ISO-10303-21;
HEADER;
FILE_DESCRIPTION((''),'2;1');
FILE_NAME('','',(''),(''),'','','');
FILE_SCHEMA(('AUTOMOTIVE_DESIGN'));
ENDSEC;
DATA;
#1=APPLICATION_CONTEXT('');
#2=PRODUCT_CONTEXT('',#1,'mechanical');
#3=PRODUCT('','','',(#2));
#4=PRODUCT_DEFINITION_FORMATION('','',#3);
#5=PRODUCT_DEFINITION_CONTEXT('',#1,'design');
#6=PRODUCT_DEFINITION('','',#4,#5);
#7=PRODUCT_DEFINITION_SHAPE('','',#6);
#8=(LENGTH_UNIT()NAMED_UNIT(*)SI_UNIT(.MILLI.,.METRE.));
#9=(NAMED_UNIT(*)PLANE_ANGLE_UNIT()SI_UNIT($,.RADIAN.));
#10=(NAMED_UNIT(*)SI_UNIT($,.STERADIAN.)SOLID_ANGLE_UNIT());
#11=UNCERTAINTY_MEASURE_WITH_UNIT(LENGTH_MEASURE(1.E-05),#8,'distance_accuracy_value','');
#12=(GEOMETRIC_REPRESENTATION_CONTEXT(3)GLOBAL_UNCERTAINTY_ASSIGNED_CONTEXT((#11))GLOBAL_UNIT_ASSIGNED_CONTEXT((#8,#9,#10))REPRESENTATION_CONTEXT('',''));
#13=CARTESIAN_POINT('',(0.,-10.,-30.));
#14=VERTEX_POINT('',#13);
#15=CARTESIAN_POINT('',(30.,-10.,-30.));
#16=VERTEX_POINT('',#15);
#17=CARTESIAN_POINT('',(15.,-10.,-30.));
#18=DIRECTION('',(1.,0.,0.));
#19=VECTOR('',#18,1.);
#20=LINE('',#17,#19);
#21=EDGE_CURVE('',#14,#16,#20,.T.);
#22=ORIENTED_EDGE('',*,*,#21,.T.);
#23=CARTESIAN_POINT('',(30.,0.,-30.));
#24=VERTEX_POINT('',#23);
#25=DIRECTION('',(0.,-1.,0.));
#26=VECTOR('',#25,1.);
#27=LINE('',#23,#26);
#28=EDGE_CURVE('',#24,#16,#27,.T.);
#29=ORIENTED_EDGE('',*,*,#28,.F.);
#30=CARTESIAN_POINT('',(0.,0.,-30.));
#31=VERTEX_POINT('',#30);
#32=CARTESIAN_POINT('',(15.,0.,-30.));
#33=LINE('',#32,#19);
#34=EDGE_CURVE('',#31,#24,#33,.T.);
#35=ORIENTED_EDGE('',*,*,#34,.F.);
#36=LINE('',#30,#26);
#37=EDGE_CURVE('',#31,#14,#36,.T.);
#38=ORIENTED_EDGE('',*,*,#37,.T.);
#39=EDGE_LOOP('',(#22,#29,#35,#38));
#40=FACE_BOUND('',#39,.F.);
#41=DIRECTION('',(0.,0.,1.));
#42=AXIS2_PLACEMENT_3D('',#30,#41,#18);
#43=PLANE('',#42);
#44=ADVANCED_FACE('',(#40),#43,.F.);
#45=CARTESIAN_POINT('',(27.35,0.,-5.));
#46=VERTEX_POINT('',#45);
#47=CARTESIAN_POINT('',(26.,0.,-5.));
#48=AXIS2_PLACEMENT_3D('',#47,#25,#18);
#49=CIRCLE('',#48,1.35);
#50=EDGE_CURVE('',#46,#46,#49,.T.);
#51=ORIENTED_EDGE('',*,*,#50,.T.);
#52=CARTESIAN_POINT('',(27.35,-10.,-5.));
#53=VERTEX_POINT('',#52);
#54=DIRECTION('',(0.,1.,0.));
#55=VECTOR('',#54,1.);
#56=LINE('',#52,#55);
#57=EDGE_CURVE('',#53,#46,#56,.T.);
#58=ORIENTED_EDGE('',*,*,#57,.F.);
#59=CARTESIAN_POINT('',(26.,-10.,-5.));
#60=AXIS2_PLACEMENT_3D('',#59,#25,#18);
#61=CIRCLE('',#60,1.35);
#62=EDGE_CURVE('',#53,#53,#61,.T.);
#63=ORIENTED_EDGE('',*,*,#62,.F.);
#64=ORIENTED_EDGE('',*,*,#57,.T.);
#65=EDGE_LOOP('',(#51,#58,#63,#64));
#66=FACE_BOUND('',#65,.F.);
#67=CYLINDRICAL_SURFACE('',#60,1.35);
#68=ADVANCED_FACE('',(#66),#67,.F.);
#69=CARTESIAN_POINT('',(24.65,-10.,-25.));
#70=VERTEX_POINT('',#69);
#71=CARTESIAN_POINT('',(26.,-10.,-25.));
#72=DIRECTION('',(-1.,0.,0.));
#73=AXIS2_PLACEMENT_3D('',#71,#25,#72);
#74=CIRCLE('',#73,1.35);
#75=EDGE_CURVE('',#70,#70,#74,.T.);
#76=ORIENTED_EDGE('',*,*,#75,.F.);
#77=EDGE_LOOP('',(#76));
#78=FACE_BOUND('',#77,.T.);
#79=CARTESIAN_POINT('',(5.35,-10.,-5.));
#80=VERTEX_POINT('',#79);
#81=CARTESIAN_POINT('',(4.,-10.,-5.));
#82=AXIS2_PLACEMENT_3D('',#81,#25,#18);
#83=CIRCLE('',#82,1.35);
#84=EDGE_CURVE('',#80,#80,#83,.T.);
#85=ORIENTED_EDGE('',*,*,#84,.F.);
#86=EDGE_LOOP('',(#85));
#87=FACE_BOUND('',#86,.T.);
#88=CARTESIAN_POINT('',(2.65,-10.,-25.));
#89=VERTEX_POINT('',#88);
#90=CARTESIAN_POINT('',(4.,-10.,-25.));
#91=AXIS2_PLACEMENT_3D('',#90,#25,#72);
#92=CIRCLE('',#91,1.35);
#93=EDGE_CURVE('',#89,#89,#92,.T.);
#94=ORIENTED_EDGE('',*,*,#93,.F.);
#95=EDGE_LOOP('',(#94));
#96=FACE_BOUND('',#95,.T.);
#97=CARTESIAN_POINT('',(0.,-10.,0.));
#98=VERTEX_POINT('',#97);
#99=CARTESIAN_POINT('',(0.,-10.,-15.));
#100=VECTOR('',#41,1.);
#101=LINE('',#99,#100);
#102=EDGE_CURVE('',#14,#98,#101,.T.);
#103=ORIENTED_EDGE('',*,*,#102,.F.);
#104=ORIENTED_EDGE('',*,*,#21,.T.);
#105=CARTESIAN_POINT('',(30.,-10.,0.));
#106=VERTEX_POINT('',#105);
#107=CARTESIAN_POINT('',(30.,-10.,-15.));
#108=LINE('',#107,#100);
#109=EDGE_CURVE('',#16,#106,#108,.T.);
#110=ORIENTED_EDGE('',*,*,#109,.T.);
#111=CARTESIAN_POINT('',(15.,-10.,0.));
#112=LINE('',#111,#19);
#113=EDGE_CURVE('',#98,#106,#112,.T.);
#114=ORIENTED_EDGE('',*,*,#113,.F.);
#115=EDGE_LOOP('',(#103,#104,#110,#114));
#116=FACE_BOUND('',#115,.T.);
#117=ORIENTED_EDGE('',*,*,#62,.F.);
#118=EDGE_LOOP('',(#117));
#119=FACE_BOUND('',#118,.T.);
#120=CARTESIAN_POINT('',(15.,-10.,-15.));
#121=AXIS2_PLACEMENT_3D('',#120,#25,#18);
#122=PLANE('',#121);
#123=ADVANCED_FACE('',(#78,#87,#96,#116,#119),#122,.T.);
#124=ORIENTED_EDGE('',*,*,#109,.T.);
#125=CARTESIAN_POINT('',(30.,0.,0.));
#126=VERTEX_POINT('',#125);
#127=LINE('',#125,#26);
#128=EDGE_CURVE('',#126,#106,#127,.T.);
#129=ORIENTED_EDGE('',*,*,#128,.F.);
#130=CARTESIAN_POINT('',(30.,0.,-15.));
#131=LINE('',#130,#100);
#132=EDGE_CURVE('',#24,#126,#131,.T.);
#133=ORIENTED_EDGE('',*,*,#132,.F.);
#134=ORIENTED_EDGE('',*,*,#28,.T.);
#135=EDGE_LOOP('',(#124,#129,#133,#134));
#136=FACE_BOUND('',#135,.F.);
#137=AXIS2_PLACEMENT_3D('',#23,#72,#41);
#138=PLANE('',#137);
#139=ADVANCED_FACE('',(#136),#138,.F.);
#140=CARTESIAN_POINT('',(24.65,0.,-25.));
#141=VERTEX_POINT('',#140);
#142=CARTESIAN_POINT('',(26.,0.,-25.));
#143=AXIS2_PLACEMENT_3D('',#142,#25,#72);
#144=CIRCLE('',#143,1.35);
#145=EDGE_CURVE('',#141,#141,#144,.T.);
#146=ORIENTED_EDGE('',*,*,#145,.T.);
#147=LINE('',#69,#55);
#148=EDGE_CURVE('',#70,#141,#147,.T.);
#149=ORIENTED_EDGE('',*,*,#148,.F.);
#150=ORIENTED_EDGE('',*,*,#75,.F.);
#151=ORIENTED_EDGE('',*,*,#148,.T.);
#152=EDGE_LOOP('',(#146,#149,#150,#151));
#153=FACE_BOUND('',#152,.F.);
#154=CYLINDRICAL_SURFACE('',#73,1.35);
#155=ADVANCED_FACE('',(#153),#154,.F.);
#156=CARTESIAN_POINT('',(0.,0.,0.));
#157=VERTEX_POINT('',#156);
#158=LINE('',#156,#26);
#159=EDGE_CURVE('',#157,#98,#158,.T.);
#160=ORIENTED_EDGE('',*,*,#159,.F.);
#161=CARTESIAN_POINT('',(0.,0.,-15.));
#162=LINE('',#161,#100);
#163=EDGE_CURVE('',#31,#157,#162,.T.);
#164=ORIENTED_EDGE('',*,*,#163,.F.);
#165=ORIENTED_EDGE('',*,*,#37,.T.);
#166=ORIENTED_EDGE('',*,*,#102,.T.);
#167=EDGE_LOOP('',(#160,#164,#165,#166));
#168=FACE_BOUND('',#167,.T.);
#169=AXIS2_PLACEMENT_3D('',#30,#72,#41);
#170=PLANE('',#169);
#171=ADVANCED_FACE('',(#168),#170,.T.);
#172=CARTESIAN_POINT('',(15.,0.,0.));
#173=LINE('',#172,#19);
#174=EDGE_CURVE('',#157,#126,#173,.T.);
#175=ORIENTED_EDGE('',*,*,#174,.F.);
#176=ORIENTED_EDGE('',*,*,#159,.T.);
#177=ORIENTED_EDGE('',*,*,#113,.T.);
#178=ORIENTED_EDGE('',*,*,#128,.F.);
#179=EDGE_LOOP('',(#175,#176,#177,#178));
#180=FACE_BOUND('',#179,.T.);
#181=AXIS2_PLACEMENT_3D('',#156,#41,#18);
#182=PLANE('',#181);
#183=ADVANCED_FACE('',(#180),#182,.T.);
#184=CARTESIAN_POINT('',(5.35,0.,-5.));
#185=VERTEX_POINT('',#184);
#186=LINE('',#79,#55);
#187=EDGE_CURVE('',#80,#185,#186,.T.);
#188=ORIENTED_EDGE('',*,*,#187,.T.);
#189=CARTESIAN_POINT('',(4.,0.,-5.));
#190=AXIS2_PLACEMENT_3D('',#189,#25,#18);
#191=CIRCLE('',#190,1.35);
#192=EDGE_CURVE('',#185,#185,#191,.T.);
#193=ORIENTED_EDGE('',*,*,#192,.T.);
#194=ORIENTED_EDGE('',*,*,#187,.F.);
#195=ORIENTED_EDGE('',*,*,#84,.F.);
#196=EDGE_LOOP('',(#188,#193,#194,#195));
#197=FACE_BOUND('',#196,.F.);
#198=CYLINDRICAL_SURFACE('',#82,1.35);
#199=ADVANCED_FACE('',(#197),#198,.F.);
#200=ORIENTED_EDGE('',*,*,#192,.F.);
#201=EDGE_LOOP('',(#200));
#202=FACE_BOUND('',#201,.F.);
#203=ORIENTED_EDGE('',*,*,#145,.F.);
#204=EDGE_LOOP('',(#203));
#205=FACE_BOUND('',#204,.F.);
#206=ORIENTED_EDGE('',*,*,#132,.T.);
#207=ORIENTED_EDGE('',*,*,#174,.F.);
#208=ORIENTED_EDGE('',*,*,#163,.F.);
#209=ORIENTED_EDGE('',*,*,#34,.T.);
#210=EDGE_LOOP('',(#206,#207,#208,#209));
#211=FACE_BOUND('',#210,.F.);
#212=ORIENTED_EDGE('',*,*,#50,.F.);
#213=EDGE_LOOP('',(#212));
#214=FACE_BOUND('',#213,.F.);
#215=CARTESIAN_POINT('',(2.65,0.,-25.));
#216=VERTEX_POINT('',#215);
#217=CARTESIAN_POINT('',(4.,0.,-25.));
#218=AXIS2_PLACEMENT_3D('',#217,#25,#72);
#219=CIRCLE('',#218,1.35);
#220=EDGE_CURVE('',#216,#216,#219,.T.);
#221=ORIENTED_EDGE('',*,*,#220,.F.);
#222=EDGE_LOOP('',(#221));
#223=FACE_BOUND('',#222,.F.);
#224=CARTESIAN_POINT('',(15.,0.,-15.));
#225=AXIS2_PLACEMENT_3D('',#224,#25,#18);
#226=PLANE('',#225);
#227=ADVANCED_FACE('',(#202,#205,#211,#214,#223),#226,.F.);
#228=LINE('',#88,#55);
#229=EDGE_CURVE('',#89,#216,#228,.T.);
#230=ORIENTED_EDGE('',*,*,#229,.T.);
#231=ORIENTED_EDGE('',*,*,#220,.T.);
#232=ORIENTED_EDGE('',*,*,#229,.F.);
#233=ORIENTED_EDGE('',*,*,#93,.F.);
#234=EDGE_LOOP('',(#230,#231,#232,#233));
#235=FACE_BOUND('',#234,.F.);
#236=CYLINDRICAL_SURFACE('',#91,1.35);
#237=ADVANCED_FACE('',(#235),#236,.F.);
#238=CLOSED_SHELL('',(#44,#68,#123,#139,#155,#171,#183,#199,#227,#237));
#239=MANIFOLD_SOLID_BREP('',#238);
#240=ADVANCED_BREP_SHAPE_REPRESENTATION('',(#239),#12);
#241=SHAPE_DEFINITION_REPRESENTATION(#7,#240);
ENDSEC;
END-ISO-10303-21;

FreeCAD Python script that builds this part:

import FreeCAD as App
import Part
import Sketcher
from FreeCAD import Vector

doc = App.newDocument("Part")
body = doc.addObject("PartDesign::Body", "Body")

# Sketch on XZ plane
sketch1 = body.newObject("Sketcher::SketchObject", "Sketch")
sketch1.AttachmentSupport = (doc.getObject("XZ_Plane"), [""])
sketch1.MapMode = "FlatFace"
sketch1.addGeometry([
    Part.LineSegment(Vector(0, 0, 0), Vector(0, -30, 0)),
    Part.LineSegment(Vector(0, -30, 0), Vector(30, -30, 0)),
    Part.LineSegment(Vector(30, -30, 0), Vector(30, 0, 0)),
    Part.LineSegment(Vector(30, 0, 0), Vector(0, 0, 0)),
], False)
sketch1.addConstraint([
    Sketcher.Constraint("Coincident", 0, 2, 1, 1),
    Sketcher.Constraint("Coincident", 1, 2, 2, 1),
    Sketcher.Constraint("Coincident", 2, 2, 3, 1),
    Sketcher.Constraint("Coincident", 3, 2, 0, 1),
    Sketcher.Constraint("Vertical", 0),
    Sketcher.Constraint("Horizontal", 1),
    Sketcher.Constraint("Vertical", 2),
    Sketcher.Constraint("Horizontal", 3),
    Sketcher.Constraint("Coincident", 3, 2, -1, 1),
    Sketcher.Constraint("Equal", 3, 0),
    Sketcher.Constraint("DistanceX", 1, 1, 1, 2, 30.0),
])
pad1 = body.newObject("PartDesign::Pad", "Pad")
pad1.Profile = sketch1
pad1.Length = 10

# Sketch on XZ plane
sketch2 = body.newObject("Sketcher::SketchObject", "Sketch001")
sketch2.AttachmentSupport = (doc.getObject("XZ_Plane"), [""])
sketch2.MapMode = "FlatFace"
sketch2.AttachmentOffset = App.Placement(Vector(0, 0, 10), App.Rotation())
sketch2.addGeometry([
    Part.Circle(Vector(4, -25, 0), Vector(0, 0, 1), 1.35),
    Part.Circle(Vector(26, -25, 0), Vector(0, 0, 1), 1.35),
    Part.Circle(Vector(26, -5, 0), Vector(0, 0, 1), 1.35),
    Part.Circle(Vector(4, -5, 0), Vector(0, 0, 1), 1.35),
], False)
sketch2.addConstraint([
    Sketcher.Constraint("Equal", 0, 1),
    Sketcher.Constraint("Equal", 1, 2),
    Sketcher.Constraint("Equal", 2, 3),
    Sketcher.Constraint("Horizontal", 0, 3, 1, 3),
    Sketcher.Constraint("Horizontal", 2, 3, 3, 3),
    Sketcher.Constraint("Vertical", 1, 3, 2, 3),
    Sketcher.Constraint("Vertical", 0, 3, 3, 3),
    Sketcher.Constraint("Diameter", 0, 2.7),
    Sketcher.Constraint("DistanceX", -1, 1, 0, 3, 4.0),
    Sketcher.Constraint("DistanceY", 0, 3, -1, 1, 25.0),
    Sketcher.Constraint("DistanceX", -1, 1, 1, 3, 26.0),
    Sketcher.Constraint("DistanceY", 2, 3, -1, 1, 5.0),
])
pocket1 = body.newObject("PartDesign::Pocket", "Pocket")
pocket1.Profile = sketch2
pocket1.Length = 25

doc.recompute()
